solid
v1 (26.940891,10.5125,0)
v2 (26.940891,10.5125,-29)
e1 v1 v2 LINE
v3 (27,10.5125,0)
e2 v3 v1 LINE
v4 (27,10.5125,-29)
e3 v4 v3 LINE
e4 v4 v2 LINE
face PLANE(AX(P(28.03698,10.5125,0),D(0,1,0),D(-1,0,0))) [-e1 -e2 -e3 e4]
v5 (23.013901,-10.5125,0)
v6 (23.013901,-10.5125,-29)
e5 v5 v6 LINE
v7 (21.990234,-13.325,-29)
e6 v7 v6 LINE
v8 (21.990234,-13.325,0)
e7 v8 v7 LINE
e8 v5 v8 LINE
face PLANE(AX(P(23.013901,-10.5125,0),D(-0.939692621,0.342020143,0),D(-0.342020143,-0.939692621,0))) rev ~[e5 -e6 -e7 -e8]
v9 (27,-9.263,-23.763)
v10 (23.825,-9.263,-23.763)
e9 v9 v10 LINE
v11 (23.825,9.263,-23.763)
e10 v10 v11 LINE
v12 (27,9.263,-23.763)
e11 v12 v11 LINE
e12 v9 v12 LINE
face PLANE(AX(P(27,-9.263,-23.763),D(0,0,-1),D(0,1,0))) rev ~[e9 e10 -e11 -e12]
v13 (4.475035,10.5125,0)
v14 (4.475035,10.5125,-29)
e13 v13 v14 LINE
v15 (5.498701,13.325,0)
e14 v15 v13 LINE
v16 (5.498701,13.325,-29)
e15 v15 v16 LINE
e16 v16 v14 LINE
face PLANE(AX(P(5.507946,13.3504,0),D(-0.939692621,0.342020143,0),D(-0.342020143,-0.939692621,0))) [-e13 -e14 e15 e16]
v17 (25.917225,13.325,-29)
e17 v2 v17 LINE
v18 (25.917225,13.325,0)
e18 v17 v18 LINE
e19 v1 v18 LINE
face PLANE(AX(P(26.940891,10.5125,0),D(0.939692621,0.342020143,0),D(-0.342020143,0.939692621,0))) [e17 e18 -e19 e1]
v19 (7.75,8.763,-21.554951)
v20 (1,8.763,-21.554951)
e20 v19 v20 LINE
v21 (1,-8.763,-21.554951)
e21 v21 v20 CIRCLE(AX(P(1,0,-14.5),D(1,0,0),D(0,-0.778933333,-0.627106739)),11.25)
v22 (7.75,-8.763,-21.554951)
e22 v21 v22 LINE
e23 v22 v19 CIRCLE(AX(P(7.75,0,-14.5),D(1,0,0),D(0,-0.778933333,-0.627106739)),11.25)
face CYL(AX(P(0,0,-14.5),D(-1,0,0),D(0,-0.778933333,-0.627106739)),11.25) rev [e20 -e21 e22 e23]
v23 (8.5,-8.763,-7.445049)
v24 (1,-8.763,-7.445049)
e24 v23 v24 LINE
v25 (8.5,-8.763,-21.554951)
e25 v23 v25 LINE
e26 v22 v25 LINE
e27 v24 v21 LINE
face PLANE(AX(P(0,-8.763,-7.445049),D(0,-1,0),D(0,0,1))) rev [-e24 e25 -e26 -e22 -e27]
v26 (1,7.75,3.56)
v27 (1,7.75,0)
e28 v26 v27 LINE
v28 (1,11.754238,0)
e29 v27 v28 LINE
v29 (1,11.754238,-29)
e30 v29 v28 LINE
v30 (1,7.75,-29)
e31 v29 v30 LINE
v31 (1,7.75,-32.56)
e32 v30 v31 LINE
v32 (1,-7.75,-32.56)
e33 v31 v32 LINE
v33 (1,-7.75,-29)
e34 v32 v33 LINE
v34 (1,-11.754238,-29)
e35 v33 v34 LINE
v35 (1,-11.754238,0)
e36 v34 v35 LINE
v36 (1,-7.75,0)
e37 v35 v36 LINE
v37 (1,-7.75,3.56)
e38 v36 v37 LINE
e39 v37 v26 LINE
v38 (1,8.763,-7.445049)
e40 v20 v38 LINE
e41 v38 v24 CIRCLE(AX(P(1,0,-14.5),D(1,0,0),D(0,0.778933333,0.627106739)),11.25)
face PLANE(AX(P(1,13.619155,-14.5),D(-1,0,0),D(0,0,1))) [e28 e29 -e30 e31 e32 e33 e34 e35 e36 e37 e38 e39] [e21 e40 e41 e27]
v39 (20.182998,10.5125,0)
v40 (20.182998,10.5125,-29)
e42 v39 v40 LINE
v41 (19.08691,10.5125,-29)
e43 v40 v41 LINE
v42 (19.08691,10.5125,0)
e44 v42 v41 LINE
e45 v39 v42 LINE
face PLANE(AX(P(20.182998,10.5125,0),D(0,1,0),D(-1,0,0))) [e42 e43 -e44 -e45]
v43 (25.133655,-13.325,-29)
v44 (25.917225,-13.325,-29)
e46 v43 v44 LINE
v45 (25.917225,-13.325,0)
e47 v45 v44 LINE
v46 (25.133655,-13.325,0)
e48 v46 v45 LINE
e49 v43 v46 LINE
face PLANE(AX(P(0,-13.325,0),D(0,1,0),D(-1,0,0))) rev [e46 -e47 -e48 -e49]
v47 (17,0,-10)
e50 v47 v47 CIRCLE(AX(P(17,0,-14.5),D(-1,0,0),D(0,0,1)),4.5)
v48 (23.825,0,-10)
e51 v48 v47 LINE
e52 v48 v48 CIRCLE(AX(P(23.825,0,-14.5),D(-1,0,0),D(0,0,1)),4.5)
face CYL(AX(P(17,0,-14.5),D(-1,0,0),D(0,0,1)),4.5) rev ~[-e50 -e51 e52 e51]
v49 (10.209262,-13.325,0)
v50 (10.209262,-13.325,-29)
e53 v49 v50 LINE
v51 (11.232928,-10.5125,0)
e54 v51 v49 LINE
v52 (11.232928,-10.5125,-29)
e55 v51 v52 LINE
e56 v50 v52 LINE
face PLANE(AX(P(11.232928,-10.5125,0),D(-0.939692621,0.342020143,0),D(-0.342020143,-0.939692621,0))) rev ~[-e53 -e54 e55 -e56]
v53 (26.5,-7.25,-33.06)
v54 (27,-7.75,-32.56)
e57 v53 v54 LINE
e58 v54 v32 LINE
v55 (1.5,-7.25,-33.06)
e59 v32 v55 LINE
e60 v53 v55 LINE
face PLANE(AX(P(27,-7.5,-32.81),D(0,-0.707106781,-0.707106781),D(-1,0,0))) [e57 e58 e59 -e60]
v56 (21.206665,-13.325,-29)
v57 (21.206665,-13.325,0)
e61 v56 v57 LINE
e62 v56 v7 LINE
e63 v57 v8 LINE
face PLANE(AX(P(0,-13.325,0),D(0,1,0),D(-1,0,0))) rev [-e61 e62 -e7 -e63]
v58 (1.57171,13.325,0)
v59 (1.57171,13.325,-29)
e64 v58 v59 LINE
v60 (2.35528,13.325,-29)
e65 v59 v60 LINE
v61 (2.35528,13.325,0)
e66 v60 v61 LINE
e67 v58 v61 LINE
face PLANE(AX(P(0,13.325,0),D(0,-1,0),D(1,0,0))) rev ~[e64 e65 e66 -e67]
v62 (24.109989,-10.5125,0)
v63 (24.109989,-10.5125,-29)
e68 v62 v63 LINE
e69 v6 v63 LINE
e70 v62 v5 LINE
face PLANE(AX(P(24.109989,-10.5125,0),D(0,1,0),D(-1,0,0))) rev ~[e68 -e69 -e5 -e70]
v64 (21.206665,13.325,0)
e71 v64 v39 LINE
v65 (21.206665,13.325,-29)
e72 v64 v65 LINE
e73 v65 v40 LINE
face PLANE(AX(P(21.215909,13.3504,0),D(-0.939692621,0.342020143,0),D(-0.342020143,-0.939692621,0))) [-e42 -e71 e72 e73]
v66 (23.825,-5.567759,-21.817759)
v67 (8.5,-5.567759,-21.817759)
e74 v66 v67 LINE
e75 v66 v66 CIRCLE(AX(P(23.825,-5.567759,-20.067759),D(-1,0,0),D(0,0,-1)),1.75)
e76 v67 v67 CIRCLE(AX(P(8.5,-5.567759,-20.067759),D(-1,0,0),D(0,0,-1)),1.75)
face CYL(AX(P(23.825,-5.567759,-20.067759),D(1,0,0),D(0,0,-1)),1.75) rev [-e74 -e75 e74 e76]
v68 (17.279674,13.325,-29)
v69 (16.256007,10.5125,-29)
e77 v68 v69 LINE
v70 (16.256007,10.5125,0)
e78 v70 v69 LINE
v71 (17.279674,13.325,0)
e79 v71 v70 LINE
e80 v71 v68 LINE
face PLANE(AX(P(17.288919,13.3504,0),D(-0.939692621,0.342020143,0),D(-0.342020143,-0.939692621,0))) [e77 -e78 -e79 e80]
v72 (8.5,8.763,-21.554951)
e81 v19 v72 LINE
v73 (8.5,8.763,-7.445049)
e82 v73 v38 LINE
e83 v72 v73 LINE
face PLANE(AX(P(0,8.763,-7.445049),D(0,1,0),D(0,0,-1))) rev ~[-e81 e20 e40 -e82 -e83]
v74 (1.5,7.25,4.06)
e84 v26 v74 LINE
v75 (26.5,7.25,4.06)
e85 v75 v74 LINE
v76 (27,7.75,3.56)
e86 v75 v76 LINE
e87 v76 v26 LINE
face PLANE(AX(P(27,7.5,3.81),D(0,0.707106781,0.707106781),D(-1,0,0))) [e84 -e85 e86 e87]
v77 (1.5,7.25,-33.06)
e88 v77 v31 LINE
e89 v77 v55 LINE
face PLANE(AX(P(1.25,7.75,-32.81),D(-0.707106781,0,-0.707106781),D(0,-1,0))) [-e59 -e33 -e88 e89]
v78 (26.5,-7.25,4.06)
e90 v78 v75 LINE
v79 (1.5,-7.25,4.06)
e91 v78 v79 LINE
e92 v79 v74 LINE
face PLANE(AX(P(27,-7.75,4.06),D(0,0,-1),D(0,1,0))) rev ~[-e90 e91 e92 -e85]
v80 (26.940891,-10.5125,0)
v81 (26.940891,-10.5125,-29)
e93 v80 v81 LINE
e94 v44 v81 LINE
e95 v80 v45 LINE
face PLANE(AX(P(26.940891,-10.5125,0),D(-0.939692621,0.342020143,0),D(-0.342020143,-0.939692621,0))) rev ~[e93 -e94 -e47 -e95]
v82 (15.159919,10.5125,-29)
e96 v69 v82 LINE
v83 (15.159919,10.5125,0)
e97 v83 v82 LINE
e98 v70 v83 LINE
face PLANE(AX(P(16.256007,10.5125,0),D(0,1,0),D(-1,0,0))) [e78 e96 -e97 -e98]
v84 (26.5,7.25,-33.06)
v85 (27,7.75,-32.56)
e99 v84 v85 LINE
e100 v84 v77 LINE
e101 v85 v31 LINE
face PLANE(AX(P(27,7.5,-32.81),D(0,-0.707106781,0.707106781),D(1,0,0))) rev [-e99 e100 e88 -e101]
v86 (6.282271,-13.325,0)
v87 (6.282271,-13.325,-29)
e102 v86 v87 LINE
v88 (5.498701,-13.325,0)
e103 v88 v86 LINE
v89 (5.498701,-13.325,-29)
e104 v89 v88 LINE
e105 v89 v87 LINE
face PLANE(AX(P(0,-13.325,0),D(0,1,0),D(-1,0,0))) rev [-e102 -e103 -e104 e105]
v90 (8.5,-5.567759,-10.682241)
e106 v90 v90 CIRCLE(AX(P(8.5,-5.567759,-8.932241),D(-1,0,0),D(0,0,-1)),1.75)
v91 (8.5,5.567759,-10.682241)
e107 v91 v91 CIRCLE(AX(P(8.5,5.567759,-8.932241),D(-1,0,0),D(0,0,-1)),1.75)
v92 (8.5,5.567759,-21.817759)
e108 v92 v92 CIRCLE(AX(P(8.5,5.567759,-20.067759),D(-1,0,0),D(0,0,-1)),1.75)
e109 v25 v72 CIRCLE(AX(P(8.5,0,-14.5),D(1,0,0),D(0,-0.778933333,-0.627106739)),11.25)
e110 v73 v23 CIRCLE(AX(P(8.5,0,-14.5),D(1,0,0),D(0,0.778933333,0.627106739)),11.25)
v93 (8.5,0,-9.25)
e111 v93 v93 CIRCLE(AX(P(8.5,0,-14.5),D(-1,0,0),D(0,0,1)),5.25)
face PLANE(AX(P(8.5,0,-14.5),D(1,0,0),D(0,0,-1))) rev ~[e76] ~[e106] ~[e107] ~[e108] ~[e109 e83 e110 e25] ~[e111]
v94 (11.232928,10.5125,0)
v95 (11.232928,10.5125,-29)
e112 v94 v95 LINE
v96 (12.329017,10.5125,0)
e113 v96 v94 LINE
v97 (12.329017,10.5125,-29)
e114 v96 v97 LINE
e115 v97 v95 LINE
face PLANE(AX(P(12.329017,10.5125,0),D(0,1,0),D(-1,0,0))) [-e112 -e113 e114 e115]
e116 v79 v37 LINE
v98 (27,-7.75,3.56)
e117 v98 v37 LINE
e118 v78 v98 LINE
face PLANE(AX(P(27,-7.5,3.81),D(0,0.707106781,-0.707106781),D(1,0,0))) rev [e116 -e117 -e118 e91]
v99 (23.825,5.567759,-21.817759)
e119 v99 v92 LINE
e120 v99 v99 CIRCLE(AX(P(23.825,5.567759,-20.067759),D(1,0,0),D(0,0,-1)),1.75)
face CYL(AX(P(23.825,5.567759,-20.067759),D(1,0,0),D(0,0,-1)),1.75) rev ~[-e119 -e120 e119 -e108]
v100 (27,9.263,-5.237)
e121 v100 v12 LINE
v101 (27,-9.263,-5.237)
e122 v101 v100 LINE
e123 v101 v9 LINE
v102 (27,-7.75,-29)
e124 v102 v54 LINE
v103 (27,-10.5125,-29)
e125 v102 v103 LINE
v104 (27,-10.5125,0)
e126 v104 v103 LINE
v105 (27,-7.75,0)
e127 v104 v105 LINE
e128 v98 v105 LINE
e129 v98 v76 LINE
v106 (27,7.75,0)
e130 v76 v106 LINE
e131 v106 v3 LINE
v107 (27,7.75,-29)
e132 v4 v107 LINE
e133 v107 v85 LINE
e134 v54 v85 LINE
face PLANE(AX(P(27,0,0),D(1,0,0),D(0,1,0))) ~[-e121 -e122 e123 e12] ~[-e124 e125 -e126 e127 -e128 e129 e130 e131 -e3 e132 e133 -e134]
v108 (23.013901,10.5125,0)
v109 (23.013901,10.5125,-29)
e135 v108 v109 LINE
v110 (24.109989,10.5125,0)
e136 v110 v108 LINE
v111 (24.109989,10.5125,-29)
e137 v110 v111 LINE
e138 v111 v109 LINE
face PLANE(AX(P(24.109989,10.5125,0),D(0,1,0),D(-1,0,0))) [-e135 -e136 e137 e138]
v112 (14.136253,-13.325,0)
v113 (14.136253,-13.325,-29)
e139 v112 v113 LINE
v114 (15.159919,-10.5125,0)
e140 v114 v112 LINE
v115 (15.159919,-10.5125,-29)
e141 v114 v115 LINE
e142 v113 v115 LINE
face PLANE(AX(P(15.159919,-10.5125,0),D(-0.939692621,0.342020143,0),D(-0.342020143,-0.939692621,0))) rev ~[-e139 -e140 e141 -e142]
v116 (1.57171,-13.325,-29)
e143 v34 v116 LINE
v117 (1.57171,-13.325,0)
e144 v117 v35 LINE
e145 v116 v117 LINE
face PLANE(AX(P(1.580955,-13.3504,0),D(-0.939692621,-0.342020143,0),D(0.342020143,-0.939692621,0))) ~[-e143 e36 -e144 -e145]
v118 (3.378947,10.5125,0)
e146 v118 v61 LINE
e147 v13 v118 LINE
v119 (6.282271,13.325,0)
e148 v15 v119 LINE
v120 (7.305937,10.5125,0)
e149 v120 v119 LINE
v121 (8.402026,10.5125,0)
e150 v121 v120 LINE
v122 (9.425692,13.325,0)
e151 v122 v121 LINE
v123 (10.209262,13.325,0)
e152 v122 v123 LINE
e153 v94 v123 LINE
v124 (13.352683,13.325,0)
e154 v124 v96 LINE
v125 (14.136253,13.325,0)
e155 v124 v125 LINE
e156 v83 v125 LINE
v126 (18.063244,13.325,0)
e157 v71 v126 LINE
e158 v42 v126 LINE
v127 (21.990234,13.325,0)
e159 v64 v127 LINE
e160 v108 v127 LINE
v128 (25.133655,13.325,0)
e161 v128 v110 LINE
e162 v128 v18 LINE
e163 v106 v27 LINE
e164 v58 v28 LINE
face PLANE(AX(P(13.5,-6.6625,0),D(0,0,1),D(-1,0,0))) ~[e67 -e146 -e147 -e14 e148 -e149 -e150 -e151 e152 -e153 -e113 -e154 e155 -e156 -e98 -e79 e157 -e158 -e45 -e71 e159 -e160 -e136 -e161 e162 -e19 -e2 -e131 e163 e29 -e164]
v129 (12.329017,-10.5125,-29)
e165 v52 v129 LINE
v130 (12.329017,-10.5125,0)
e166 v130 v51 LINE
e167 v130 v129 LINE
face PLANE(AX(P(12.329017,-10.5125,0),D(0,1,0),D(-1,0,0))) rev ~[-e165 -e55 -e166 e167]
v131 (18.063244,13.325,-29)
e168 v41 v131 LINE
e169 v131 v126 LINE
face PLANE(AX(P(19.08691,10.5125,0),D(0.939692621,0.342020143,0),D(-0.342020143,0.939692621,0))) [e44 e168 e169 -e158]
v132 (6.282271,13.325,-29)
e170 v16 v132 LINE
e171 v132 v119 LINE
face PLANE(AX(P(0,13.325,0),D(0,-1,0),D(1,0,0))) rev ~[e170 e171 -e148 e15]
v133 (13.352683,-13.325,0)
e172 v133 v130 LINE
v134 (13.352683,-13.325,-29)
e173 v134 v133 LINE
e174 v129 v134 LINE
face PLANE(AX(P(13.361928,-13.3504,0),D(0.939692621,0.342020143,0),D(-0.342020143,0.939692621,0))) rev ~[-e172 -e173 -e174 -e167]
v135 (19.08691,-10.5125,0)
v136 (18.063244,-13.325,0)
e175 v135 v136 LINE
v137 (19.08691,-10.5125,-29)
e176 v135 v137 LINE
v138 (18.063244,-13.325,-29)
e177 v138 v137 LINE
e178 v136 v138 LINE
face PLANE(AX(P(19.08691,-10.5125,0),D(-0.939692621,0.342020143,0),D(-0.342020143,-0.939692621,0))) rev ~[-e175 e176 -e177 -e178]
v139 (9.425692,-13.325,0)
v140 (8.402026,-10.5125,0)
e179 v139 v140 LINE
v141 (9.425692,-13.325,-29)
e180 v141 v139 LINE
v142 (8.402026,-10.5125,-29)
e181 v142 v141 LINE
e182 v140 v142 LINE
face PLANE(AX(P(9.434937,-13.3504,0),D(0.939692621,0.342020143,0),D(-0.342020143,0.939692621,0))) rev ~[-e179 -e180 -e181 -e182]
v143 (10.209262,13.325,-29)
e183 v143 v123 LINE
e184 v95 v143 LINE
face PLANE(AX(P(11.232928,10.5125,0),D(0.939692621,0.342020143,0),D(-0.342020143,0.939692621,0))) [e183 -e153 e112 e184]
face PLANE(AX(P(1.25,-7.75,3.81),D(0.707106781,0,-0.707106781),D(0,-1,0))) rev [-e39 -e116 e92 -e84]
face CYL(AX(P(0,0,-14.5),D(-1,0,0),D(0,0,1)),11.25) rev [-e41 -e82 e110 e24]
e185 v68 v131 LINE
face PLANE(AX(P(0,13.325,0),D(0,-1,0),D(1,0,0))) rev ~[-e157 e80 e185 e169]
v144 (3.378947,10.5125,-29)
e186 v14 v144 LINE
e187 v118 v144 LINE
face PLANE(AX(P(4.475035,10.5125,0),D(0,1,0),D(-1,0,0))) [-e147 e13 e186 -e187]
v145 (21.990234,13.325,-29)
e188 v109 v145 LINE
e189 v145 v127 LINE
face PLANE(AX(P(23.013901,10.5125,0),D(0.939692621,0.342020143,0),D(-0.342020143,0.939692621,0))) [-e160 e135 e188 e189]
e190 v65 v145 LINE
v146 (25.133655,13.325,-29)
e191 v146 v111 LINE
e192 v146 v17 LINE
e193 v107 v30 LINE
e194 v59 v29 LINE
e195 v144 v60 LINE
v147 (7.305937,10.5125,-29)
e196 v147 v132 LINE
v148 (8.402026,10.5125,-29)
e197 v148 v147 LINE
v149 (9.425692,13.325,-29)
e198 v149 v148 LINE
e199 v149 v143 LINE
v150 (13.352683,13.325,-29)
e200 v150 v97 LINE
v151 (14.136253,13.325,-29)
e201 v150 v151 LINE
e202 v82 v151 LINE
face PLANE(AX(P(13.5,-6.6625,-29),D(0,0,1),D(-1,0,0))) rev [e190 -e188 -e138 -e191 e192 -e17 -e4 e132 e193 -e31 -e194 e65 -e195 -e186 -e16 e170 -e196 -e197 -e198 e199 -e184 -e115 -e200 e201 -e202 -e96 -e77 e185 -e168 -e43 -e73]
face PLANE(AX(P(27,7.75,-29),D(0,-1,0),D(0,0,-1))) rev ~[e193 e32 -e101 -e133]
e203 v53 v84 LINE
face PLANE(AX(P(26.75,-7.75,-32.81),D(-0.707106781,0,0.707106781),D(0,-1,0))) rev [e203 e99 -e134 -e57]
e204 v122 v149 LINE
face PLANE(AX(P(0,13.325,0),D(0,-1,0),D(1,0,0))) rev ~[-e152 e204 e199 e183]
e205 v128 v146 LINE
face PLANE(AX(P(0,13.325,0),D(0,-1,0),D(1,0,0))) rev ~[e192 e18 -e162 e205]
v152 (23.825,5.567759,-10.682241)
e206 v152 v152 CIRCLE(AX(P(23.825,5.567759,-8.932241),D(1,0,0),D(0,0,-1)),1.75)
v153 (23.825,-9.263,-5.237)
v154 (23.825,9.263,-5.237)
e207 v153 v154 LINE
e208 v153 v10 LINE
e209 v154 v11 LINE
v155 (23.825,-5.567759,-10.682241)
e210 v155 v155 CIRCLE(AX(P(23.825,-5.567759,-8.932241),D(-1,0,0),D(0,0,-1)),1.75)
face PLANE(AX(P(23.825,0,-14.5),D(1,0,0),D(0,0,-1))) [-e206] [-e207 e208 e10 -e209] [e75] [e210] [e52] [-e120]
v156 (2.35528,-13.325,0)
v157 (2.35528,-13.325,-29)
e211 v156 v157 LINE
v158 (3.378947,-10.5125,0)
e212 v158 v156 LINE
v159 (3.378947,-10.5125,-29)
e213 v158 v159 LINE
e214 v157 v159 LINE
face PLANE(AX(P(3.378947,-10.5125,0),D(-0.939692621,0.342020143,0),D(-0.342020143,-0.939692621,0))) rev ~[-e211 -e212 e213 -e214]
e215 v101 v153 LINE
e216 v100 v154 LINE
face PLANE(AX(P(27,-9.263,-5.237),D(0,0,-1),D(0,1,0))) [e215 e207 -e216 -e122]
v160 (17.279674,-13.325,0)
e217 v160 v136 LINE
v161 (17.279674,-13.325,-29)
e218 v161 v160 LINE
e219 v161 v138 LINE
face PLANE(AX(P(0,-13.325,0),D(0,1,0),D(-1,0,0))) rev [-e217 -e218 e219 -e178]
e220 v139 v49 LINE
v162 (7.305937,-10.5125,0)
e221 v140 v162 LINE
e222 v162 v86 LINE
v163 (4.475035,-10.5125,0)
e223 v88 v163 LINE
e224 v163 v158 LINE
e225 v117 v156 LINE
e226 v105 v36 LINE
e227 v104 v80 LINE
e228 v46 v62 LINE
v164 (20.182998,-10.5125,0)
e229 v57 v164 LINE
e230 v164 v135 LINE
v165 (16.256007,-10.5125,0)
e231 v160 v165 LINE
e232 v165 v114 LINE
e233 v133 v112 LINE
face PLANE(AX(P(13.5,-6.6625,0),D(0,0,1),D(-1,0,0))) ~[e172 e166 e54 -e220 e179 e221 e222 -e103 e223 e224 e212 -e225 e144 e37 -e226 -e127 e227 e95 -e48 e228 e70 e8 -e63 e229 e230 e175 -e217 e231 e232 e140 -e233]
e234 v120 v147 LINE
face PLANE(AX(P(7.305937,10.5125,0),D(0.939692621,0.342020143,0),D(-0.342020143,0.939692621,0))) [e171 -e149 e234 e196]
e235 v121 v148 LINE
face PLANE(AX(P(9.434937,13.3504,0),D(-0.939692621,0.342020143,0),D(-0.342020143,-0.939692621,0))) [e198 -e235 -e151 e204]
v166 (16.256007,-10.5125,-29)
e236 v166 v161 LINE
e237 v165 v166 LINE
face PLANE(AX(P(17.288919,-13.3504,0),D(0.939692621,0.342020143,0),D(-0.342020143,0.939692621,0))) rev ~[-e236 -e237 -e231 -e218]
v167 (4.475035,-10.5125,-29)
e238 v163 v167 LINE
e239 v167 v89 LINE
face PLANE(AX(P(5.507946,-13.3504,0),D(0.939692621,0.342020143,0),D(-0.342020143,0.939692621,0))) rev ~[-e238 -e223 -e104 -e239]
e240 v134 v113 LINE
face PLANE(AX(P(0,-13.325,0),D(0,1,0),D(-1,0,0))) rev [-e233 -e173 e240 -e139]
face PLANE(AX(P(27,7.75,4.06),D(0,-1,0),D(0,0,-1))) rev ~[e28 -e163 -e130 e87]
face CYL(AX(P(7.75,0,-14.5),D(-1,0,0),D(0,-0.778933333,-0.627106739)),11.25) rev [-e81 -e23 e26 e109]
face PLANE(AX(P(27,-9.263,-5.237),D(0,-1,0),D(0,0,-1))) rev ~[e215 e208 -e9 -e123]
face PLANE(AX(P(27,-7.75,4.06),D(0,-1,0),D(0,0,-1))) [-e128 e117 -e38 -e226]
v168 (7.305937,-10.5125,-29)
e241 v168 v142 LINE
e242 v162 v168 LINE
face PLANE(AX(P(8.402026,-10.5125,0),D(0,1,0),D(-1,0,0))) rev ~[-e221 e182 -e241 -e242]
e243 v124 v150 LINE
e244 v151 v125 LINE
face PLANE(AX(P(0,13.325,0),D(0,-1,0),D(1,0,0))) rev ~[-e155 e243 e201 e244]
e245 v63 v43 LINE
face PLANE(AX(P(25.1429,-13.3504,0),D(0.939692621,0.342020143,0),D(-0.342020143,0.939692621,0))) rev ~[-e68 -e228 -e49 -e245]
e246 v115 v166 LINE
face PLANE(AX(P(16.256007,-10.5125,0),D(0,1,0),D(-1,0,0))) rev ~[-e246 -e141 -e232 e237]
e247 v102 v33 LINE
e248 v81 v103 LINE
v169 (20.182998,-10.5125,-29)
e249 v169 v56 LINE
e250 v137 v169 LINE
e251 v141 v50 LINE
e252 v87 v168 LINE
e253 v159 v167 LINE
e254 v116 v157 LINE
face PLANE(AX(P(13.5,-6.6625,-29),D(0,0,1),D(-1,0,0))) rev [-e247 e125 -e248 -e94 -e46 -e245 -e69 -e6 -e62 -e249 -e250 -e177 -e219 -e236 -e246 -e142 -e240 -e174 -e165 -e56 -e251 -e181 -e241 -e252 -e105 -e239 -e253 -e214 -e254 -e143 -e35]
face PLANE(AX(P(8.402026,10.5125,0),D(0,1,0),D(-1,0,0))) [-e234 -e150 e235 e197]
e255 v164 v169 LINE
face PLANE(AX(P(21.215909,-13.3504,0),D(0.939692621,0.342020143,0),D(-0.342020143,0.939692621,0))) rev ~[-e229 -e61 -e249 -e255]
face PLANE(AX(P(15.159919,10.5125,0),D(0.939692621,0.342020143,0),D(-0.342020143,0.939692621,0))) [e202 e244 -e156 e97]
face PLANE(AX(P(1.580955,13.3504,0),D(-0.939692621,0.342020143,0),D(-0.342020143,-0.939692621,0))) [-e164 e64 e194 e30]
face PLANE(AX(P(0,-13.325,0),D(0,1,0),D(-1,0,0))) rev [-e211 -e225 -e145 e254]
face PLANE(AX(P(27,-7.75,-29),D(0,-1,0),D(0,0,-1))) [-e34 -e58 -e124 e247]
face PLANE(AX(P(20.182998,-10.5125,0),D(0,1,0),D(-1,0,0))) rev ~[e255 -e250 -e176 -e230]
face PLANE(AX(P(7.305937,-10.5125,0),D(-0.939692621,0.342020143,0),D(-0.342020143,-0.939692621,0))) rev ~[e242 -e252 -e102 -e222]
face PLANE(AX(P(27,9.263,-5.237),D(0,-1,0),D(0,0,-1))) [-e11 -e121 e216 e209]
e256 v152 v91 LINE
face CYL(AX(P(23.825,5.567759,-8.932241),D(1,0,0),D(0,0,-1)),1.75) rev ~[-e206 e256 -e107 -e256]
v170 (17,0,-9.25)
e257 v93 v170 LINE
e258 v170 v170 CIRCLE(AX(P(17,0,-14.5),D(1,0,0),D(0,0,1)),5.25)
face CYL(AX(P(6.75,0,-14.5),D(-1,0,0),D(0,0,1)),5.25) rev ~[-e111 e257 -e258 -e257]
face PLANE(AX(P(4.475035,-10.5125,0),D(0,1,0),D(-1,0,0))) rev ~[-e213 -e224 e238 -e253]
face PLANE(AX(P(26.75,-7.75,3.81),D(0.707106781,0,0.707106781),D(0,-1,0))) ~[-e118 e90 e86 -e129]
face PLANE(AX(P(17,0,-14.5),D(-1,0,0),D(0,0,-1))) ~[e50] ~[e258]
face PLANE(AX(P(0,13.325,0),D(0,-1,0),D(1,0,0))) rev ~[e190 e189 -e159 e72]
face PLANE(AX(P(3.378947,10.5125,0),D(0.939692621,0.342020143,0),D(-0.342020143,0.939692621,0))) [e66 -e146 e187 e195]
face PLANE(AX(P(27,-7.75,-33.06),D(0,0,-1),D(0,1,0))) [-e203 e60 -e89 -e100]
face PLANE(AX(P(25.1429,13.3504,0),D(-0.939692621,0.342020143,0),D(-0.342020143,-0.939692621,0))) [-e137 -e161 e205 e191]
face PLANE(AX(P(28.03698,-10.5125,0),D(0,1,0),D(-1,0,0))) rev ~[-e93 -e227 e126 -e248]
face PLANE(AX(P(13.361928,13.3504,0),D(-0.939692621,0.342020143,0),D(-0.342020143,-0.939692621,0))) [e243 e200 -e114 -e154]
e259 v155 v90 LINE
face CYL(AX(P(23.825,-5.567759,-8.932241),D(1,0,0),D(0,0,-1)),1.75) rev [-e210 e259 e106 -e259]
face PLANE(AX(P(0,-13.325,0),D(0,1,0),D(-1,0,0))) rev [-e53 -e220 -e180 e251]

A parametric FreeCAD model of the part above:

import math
import FreeCAD as App
import Part
import Sketcher
from FreeCAD import Vector
Q = App.Units.Quantity


def edges_at(feature, points):
    """Names of the edges that pass closest to the given points."""
    edges = feature.Shape.Edges
    near = lambda p: min(range(len(edges)), key=lambda i: edges[i].distToShape(Part.Vertex(*p))[0])
    return sorted({f"Edge{near(p) + 1}" for p in points})


def add_polygon(sketch, points):
    """Adds a closed chain of lines whose ends are joined by coincident constraints."""
    first, n = sketch.GeometryCount, len(points)
    for a, b in zip(points, points[1:] + points[:1]):
        sketch.addGeometry(Part.LineSegment(App.Vector(*a, 0), App.Vector(*b, 0)), False)
    for i in range(n):
        sketch.addConstraint(Sketcher.Constraint("Coincident", first + i, 2, first + (i + 1) % n, 1))

doc = App.newDocument("Part")
params = doc.addObject("Spreadsheet::Sheet", "Params")
for row, (alias, value) in enumerate([
    ("sketch1_width", "27 mm"),
    ("pad1_length", "29 mm"),
    ("linearpattern_pitch", "3.926991 mm"),
    ("sketch3_radius", "11.25 mm"),
    ("pocket2_length", "6.75 mm"),
    ("sketch4_diameter", "10.5 mm"),
    ("pocket3_length", "10.25 mm"),
    ("sketch5_diameter", "9 mm"),
    ("pocket4_length", "74.320277 mm"),
    ("sketch6_diameter", "5 mm"),
    ("pocket5_length", "3.175 mm"),
    ("sketch7_diameter", "3.5 mm"),
    ("pocket14_length", "3.175 mm"),
    ("sketch16_width", "15.5 mm"),
    ("sketch16_height", "4.06 mm"),
    ("pad2_length", "27 mm"),
    ("sketch17_height", "29 mm"),
    ("sketch17_radius", "11.25 mm"),
    ("sketch17_width", "15.5 mm"),
    ("sketch17_height2", "4.06 mm"),
    ("pocket15_length", "1 mm"),
    ("sketch18_diameter", "3.5 mm"),
    ("sketch18_diameter2", "10.5 mm"),
    ("sketch18_radius", "11.25 mm"),
    ("pocket16_length", "7.75 mm"),
    ("sketch19_diameter", "3.5 mm"),
    ("sketch19_diameter2", "10.5 mm"),
    ("sketch19_radius", "11.25 mm"),
    ("pocket17_length", "0.75 mm"),
    ("chamfer_size", "0.5 mm"),
], start=1):
    params.set(f"A{row}", alias)
    params.set(f"B{row}", "=" + value)
    params.setAlias(f"B{row}", alias)

body = doc.addObject("PartDesign::Body", "Body")

# Sketch on XY plane
sketch1 = body.newObject("Sketcher::SketchObject", "Sketch")
sketch1.AttachmentSupport = (doc.getObject("XY_Plane"), [""])
sketch1.MapMode = "FlatFace"
add_polygon(sketch1, [(0, 13), (0, 0), (27, 0), (27, 13)])  # lines 0-3
sketch1.addConstraint(Sketcher.Constraint("Vertical", 0))
sketch1.addConstraint(Sketcher.Constraint("Horizontal", 1))
sketch1.addConstraint(Sketcher.Constraint("Vertical", 2))
sketch1.addConstraint(Sketcher.Constraint("Horizontal", 3))
sketch1.addConstraint(Sketcher.Constraint("Coincident", 0, 2, -1, 1))
sketch1.addConstraint(Sketcher.Constraint("DistanceX", 1, 1, 1, 2, 27.0))
sketch1.addConstraint(Sketcher.Constraint("DistanceY", 0, 2, 0, 1, 13.325))
sketch1.setExpression("Constraints[9]", "Params.sketch1_width")
pad1 = body.newObject("PartDesign::Pad", "Pad")
pad1.Profile = sketch1
pad1.setExpression("Length", "Params.pad1_length")
pad1.Reversed = True

# Sketch on XY plane
sketch2 = body.newObject("Sketcher::SketchObject", "Sketch001")
sketch2.AttachmentSupport = (doc.getObject("XY_Plane"), [""])
sketch2.MapMode = "FlatFace"
add_polygon(sketch2, [(-0.5, 10.5), (0.5, 10.5), (1.6, 13.4), (-1.6, 13.4)])  # lines 0-3
sketch2.addConstraint(Sketcher.Constraint("Horizontal", 0))
sketch2.addConstraint(Sketcher.Constraint("Horizontal", 2))
sketch2.addConstraint(Sketcher.Constraint("Equal", 1, 3))
sketch2.addConstraint(Sketcher.Constraint("Angle", 1, Q("70 deg")))
sketch2.addConstraint(Sketcher.Constraint("DistanceX", 2, 2, 0, 2, 2.129))
sketch2.addConstraint(Sketcher.Constraint("DistanceX", 0, 1, 0, 2, 1.096088))
sketch2.addConstraint(Sketcher.Constraint("DistanceY", -1, 1, 0, 2, 10.5125))
sketch2.addConstraint(Sketcher.Constraint("DistanceX", -1, 1, 0, 2, 0.548044))
pocket1 = body.newObject("PartDesign::Pocket", "Pocket")
pocket1.Profile = sketch2
pocket1.Type = "ThroughAll"
doc.recompute()

linearpattern = body.newObject("PartDesign::LinearPattern", "LinearPattern")
linearpattern.Originals = [pocket1]
linearpattern.Direction = (doc.getObject("X_Axis"), [""])
linearpattern.Mode = "offset"
linearpattern.setExpression("Offset", "Params.linearpattern_pitch")
linearpattern.Occurrences = 8
body.Tip = linearpattern

# Sketch on YZ plane
sketch3 = body.newObject("Sketcher::SketchObject", "Sketch002")
sketch3.AttachmentSupport = (doc.getObject("YZ_Plane"), [""])
sketch3.MapMode = "FlatFace"
sketch3.addGeometry(Part.LineSegment(Vector(9, -7, 0), Vector(9, -22, 0)), False)
sketch3.addGeometry(Part.ArcOfCircle(Part.Circle(Vector(0, -14, 0), Vector(0, 0, 1), 11), math.radians(-90), math.radians(-39)), False)
sketch3.addGeometry(Part.LineSegment(Vector(0, -26, 0), Vector(0, -3, 0)), False)
sketch3.addGeometry(Part.ArcOfCircle(Part.Circle(Vector(0, -15, 0), Vector(0, 0, 1), 11), math.radians(39), math.radians(90)), False)
sketch3.addConstraint(Sketcher.Constraint("Coincident", 0, 2, 1, 2))
sketch3.addConstraint(Sketcher.Constraint("Coincident", 1, 1, 2, 1))
sketch3.addConstraint(Sketcher.Constraint("Coincident", 2, 2, 3, 2))
sketch3.addConstraint(Sketcher.Constraint("Coincident", 3, 1, 0, 1))
sketch3.addConstraint(Sketcher.Constraint("Vertical", 0))
sketch3.addConstraint(Sketcher.Constraint("Vertical", 2))
sketch3.addConstraint(Sketcher.Constraint("Coincident", 3, 3, 1, 3))
sketch3.addConstraint(Sketcher.Constraint("Equal", 1, 3))
sketch3.addConstraint(Sketcher.Constraint("PointOnObject", 1, 3, -2))
sketch3.addConstraint(Sketcher.Constraint("PointOnObject", 1, 1, -2))
sketch3.addConstraint(Sketcher.Constraint("Radius", 1, 11.25))
sketch3.addConstraint(Sketcher.Constraint("DistanceY", 1, 3, -1, 1, 14.5))
sketch3.addConstraint(Sketcher.Constraint("DistanceY", 0, 2, 0, 1, 14.109902))
sketch3.setExpression("Constraints[10]", "Params.sketch3_radius")
pocket2 = body.newObject("PartDesign::Pocket", "Pocket001")
pocket2.Profile = sketch3
pocket2.setExpression("Length", "Params.pocket2_length")
pocket2.Reversed = True

# Sketch on YZ plane
sketch4 = body.newObject("Sketcher::SketchObject", "Sketch003")
sketch4.AttachmentSupport = (doc.getObject("YZ_Plane"), [""])
sketch4.MapMode = "FlatFace"
sketch4.AttachmentOffset = App.Placement(Vector(0, 0, 6.75), App.Rotation())
sketch4.addGeometry(Part.Circle(Vector(0, -14, 0), Vector(0, 0, 1), 5), False)
sketch4.addConstraint(Sketcher.Constraint("PointOnObject", 0, 3, -2))
sketch4.addConstraint(Sketcher.Constraint("Diameter", 0, 10.5))
sketch4.addConstraint(Sketcher.Constraint("DistanceY", 0, 3, -1, 1, 14.5))
sketch4.setExpression("Constraints[1]", "Params.sketch4_diameter")
pocket3 = body.newObject("PartDesign::Pocket", "Pocket002")
pocket3.Profile = sketch4
pocket3.setExpression("Length", "Params.pocket3_length")
pocket3.Reversed = True

# Sketch on YZ plane
sketch5 = body.newObject("Sketcher::SketchObject", "Sketch004")
sketch5.AttachmentSupport = (doc.getObject("YZ_Plane"), [""])
sketch5.MapMode = "FlatFace"
sketch5.AttachmentOffset = App.Placement(Vector(0, 0, 17), App.Rotation())
sketch5.addGeometry(Part.Circle(Vector(0, -14.5, 0), Vector(0, 0, 1), 4.5), False)
sketch5.addConstraint(Sketcher.Constraint("PointOnObject", 0, 3, -2))
sketch5.addConstraint(Sketcher.Constraint("Diameter", 0, 9.0))
sketch5.addConstraint(Sketcher.Constraint("DistanceY", 0, 3, -1, 1, 14.5))
sketch5.setExpression("Constraints[1]", "Params.sketch5_diameter")
pocket4 = body.newObject("PartDesign::Pocket", "Pocket003")
pocket4.Profile = sketch5
pocket4.setExpression("Length", "Params.pocket4_length")
pocket4.Midplane = True

# Sketch on YZ plane
sketch6 = body.newObject("Sketcher::SketchObject", "Sketch005")
sketch6.AttachmentSupport = (doc.getObject("YZ_Plane"), [""])
sketch6.MapMode = "FlatFace"
sketch6.AttachmentOffset = App.Placement(Vector(0, 0, 27), App.Rotation())
sketch6.addGeometry(Part.Circle(Vector(5.6, -8.9, 0), Vector(0, 0, 1), 2.5), False)
sketch6.addGeometry(Part.Circle(Vector(5.6, -20.1, 0), Vector(0, 0, 1), 2.5), False)
sketch6.addConstraint(Sketcher.Constraint("Equal", 0, 1))
sketch6.addConstraint(Sketcher.Constraint("Vertical", 0, 3, 1, 3))
sketch6.addConstraint(Sketcher.Constraint("Diameter", 0, 5.0))
sketch6.addConstraint(Sketcher.Constraint("DistanceX", -1, 1, 0, 3, 5.567759))
sketch6.addConstraint(Sketcher.Constraint("DistanceY", 0, 3, -1, 1, 8.932241))
sketch6.addConstraint(Sketcher.Constraint("DistanceY", 1, 3, -1, 1, 20.067759))
sketch6.setExpression("Constraints[2]", "Params.sketch6_diameter")
pocket5 = body.newObject("PartDesign::Pocket", "Pocket004")
pocket5.Profile = sketch6
pocket5.setExpression("Length", "Params.pocket5_length")

# Sketch on YZ plane
sketch7 = body.newObject("Sketcher::SketchObject", "Sketch006")
sketch7.AttachmentSupport = (doc.getObject("YZ_Plane"), [""])
sketch7.MapMode = "FlatFace"
sketch7.AttachmentOffset = App.Placement(Vector(0, 0, 23.825), App.Rotation())
sketch7.addGeometry(Part.Circle(Vector(5.6, -20.1, 0), Vector(0, 0, 1), 1.8), False)
sketch7.addGeometry(Part.Circle(Vector(5.6, -8.9, 0), Vector(0, 0, 1), 1.8), False)
sketch7.addConstraint(Sketcher.Constraint("Equal", 0, 1))
sketch7.addConstraint(Sketcher.Constraint("Vertical", 0, 3, 1, 3))
sketch7.addConstraint(Sketcher.Constraint("Diameter", 0, 3.5))
sketch7.addConstraint(Sketcher.Constraint("DistanceX", -1, 1, 0, 3, 5.567759))
sketch7.addConstraint(Sketcher.Constraint("DistanceY", 0, 3, -1, 1, 20.067759))
sketch7.addConstraint(Sketcher.Constraint("DistanceY", 1, 3, -1, 1, 8.932241))
sketch7.setExpression("Constraints[2]", "Params.sketch7_diameter")
pocket6 = body.newObject("PartDesign::Pocket", "Pocket005")
pocket6.Profile = sketch7
pocket6.Type = "ThroughAll"
doc.recompute()

mirrored = body.newObject("PartDesign::Mirrored", "Mirrored")
mirrored.Originals = [pad1, pocket1, pocket2, pocket3, pocket4, pocket5, pocket6]
mirrored.MirrorPlane = (doc.getObject("XZ_Plane"), [""])
body.Tip = mirrored

# Sketch on XY plane
sketch8 = body.newObject("Sketcher::SketchObject", "Sketch007")
sketch8.AttachmentSupport = (doc.getObject("XY_Plane"), [""])
sketch8.MapMode = "FlatFace"
add_polygon(sketch8, [(4.5, -10.5), (3.4, -10.5), (2.3, -13.4), (5.5, -13.4)])  # lines 0-3
sketch8.addConstraint(Sketcher.Constraint("Horizontal", 0))
sketch8.addConstraint(Sketcher.Constraint("Horizontal", 2))
sketch8.addConstraint(Sketcher.Constraint("Equal", 1, 3))
sketch8.addConstraint(Sketcher.Constraint("Angle", 1, Q("-110 deg")))
sketch8.addConstraint(Sketcher.Constraint("DistanceX", 0, 2, 2, 2, 2.129))
sketch8.addConstraint(Sketcher.Constraint("DistanceX", 0, 2, 0, 1, 1.096088))
sketch8.addConstraint(Sketcher.Constraint("DistanceY", 0, 2, -1, 1, 10.5125))
sketch8.addConstraint(Sketcher.Constraint("DistanceX", -1, 1, 0, 2, 3.378947))
pocket7 = body.newObject("PartDesign::Pocket", "Pocket006")
pocket7.Profile = sketch8
pocket7.Type = "ThroughAll"

# Sketch on XY plane
sketch9 = body.newObject("Sketcher::SketchObject", "Sketch008")
sketch9.AttachmentSupport = (doc.getObject("XY_Plane"), [""])
sketch9.MapMode = "FlatFace"
add_polygon(sketch9, [(8.4, -10.5), (7.3, -10.5), (6.3, -13.4), (9.4, -13.4)])  # lines 0-3
sketch9.addConstraint(Sketcher.Constraint("Horizontal", 0))
sketch9.addConstraint(Sketcher.Constraint("Horizontal", 2))
sketch9.addConstraint(Sketcher.Constraint("Equal", 1, 3))
sketch9.addConstraint(Sketcher.Constraint("Angle", 1, Q("-110 deg")))
sketch9.addConstraint(Sketcher.Constraint("DistanceX", 0, 2, 2, 2, 2.129))
sketch9.addConstraint(Sketcher.Constraint("DistanceX", 0, 2, 0, 1, 1.096088))
sketch9.addConstraint(Sketcher.Constraint("DistanceY", 0, 2, -1, 1, 10.5125))
sketch9.addConstraint(Sketcher.Constraint("DistanceX", -1, 1, 0, 2, 7.305937))
pocket8 = body.newObject("PartDesign::Pocket", "Pocket007")
pocket8.Profile = sketch9
pocket8.Type = "ThroughAll"

# Sketch on XY plane
sketch10 = body.newObject("Sketcher::SketchObject", "Sketch009")
sketch10.AttachmentSupport = (doc.getObject("XY_Plane"), [""])
sketch10.MapMode = "FlatFace"
add_polygon(sketch10, [(12.3, -10.5), (11.2, -10.5), (10.2, -13.4), (13.4, -13.4)])  # lines 0-3
sketch10.addConstraint(Sketcher.Constraint("Horizontal", 0))
sketch10.addConstraint(Sketcher.Constraint("Horizontal", 2))
sketch10.addConstraint(Sketcher.Constraint("Equal", 1, 3))
sketch10.addConstraint(Sketcher.Constraint("Angle", 1, Q("-110 deg")))
sketch10.addConstraint(Sketcher.Constraint("DistanceX", 0, 2, 2, 2, 2.129))
sketch10.addConstraint(Sketcher.Constraint("DistanceX", 0, 2, 0, 1, 1.096088))
sketch10.addConstraint(Sketcher.Constraint("DistanceY", 0, 2, -1, 1, 10.5125))
sketch10.addConstraint(Sketcher.Constraint("DistanceX", -1, 1, 0, 2, 11.232928))
pocket9 = body.newObject("PartDesign::Pocket", "Pocket008")
pocket9.Profile = sketch10
pocket9.Type = "ThroughAll"

# Sketch on XY plane
sketch11 = body.newObject("Sketcher::SketchObject", "Sketch010")
sketch11.AttachmentSupport = (doc.getObject("XY_Plane"), [""])
sketch11.MapMode = "FlatFace"
add_polygon(sketch11, [(16.3, -10.5), (15.2, -10.5), (14.1, -13.4), (17.3, -13.4)])  # lines 0-3
sketch11.addConstraint(Sketcher.Constraint("Horizontal", 0))
sketch11.addConstraint(Sketcher.Constraint("Horizontal", 2))
sketch11.addConstraint(Sketcher.Constraint("Equal", 1, 3))
sketch11.addConstraint(Sketcher.Constraint("Angle", 1, Q("-110 deg")))
sketch11.addConstraint(Sketcher.Constraint("DistanceX", 0, 2, 2, 2, 2.129))
sketch11.addConstraint(Sketcher.Constraint("DistanceX", 0, 2, 0, 1, 1.096088))
sketch11.addConstraint(Sketcher.Constraint("DistanceY", 0, 2, -1, 1, 10.5125))
sketch11.addConstraint(Sketcher.Constraint("DistanceX", -1, 1, 0, 2, 15.159919))
pocket10 = body.newObject("PartDesign::Pocket", "Pocket009")
pocket10.Profile = sketch11
pocket10.Type = "ThroughAll"

# Sketch on XY plane
sketch12 = body.newObject("Sketcher::SketchObject", "Sketch011")
sketch12.AttachmentSupport = (doc.getObject("XY_Plane"), [""])
sketch12.MapMode = "FlatFace"
add_polygon(sketch12, [(20.2, -10.5), (19.1, -10.5), (18.1, -13.4), (21.2, -13.4)])  # lines 0-3
sketch12.addConstraint(Sketcher.Constraint("Horizontal", 0))
sketch12.addConstraint(Sketcher.Constraint("Horizontal", 2))
sketch12.addConstraint(Sketcher.Constraint("Equal", 1, 3))
sketch12.addConstraint(Sketcher.Constraint("Angle", 1, Q("-110 deg")))
sketch12.addConstraint(Sketcher.Constraint("DistanceX", -1, 1, 1, 2, 18.053999))
sketch12.addConstraint(Sketcher.Constraint("DistanceX", -1, 1, 3, 2, 20.182998))
sketch12.addConstraint(Sketcher.Constraint("DistanceX", 0, 2, 0, 1, 1.096088))
sketch12.addConstraint(Sketcher.Constraint("DistanceY", 0, 2, -1, 1, 10.5125))
pocket11 = body.newObject("PartDesign::Pocket", "Pocket010")
pocket11.Profile = sketch12
pocket11.Type = "ThroughAll"

# Sketch on XY plane
sketch13 = body.newObject("Sketcher::SketchObject", "Sketch012")
sketch13.AttachmentSupport = (doc.getObject("XY_Plane"), [""])
sketch13.MapMode = "FlatFace"
add_polygon(sketch13, [(24.1, -10.5), (23, -10.5), (22, -13.4), (25.1, -13.4)])  # lines 0-3
sketch13.addConstraint(Sketcher.Constraint("Horizontal", 0))
sketch13.addConstraint(Sketcher.Constraint("Horizontal", 2))
sketch13.addConstraint(Sketcher.Constraint("Equal", 1, 3))
sketch13.addConstraint(Sketcher.Constraint("Angle", 1, Q("-110 deg")))
sketch13.addConstraint(Sketcher.Constraint("DistanceX", 0, 2, 2, 2, 2.129))
sketch13.addConstraint(Sketcher.Constraint("DistanceX", 0, 2, 0, 1, 1.096088))
sketch13.addConstraint(Sketcher.Constraint("DistanceX", -1, 1, 0, 2, 23.013901))
sketch13.addConstraint(Sketcher.Constraint("DistanceY", 0, 2, -1, 1, 10.5125))
pocket12 = body.newObject("PartDesign::Pocket", "Pocket011")
pocket12.Profile = sketch13
pocket12.Type = "ThroughAll"

# Sketch on XY plane
sketch14 = body.newObject("Sketcher::SketchObject", "Sketch013")
sketch14.AttachmentSupport = (doc.getObject("XY_Plane"), [""])
sketch14.MapMode = "FlatFace"
add_polygon(sketch14, [(28, -10.5), (26.9, -10.5), (25.9, -13.4), (29.1, -13.4)])  # lines 0-3
sketch14.addConstraint(Sketcher.Constraint("Horizontal", 0))
sketch14.addConstraint(Sketcher.Constraint("Horizontal", 2))
sketch14.addConstraint(Sketcher.Constraint("Equal", 1, 3))
sketch14.addConstraint(Sketcher.Constraint("Angle", 1, Q("-110 deg")))
sketch14.addConstraint(Sketcher.Constraint("DistanceX", 0, 2, 2, 2, 2.129))
sketch14.addConstraint(Sketcher.Constraint("DistanceX", 0, 2, 0, 1, 1.096088))
sketch14.addConstraint(Sketcher.Constraint("DistanceY", 0, 2, -1, 1, 10.5125))
sketch14.addConstraint(Sketcher.Constraint("DistanceX", -1, 1, 0, 2, 26.940891))
pocket13 = body.newObject("PartDesign::Pocket", "Pocket012")
pocket13.Profile = sketch14
pocket13.Type = "ThroughAll"

# Sketch on YZ plane
sketch15 = body.newObject("Sketcher::SketchObject", "Sketch014")
sketch15.AttachmentSupport = (doc.getObject("YZ_Plane"), [""])
sketch15.MapMode = "FlatFace"
sketch15.AttachmentOffset = App.Placement(Vector(0, 0, 27), App.Rotation())
add_polygon(sketch15, [(9, -5), (-9, -5), (-9, -24), (9, -24)])  # lines 0-3
sketch15.addConstraint(Sketcher.Constraint("Horizontal", 0))
sketch15.addConstraint(Sketcher.Constraint("Vertical", 1))
sketch15.addConstraint(Sketcher.Constraint("Horizontal", 2))
sketch15.addConstraint(Sketcher.Constraint("Vertical", 3))
sketch15.addConstraint(Sketcher.Constraint("Equal", 2, 1))
sketch15.addConstraint(Sketcher.Constraint("DistanceX", 0, 2, 0, 1, 18.526))
sketch15.addConstraint(Sketcher.Constraint("DistanceX", 0, 2, -1, 1, 9.263))
sketch15.addConstraint(Sketcher.Constraint("DistanceY", 0, 2, -1, 1, 5.237))
pocket14 = body.newObject("PartDesign::Pocket", "Pocket013")
pocket14.Profile = sketch15
pocket14.setExpression("Length", "Params.pocket14_length")

# Sketch on YZ plane
sketch16 = body.newObject("Sketcher::SketchObject", "Sketch015")
sketch16.AttachmentSupport = (doc.getObject("YZ_Plane"), [""])
sketch16.MapMode = "FlatFace"
sketch16.AttachmentOffset = App.Placement(Vector(0, 0, 27), App.Rotation())
add_polygon(sketch16, [(7.8, -29), (-7.8, -29), (-7.8, -33.1), (7.8, -33.1)])  # lines 0-3
add_polygon(sketch16, [(7.8, 4.1), (-7.8, 4.1), (-7.8, 0), (7.8, 0)])  # lines 4-7
sketch16.addConstraint(Sketcher.Constraint("Horizontal", 0))
sketch16.addConstraint(Sketcher.Constraint("Vertical", 1))
sketch16.addConstraint(Sketcher.Constraint("Horizontal", 2))
sketch16.addConstraint(Sketcher.Constraint("Vertical", 3))
sketch16.addConstraint(Sketcher.Constraint("Horizontal", 4))
sketch16.addConstraint(Sketcher.Constraint("Vertical", 5))
sketch16.addConstraint(Sketcher.Constraint("Horizontal", 6))
sketch16.addConstraint(Sketcher.Constraint("Vertical", 7))
sketch16.addConstraint(Sketcher.Constraint("Symmetric", 5, 2, 6, 2, -1, 1))
sketch16.addConstraint(Sketcher.Constraint("Vertical", 1, 2, 4, 2))
sketch16.addConstraint(Sketcher.Constraint("Vertical", 3, 2, 6, 2))
sketch16.addConstraint(Sketcher.Constraint("Equal", 3, 5))
sketch16.addConstraint(Sketcher.Constraint("DistanceX", 0, 2, 0, 1, 15.5))
sketch16.addConstraint(Sketcher.Constraint("DistanceY", 0, 2, -1, 1, 29.0))
sketch16.addConstraint(Sketcher.Constraint("DistanceY", 1, 2, 1, 1, 4.06))
sketch16.setExpression("Constraints[20]", "Params.sketch16_width")
sketch16.setExpression("Constraints[22]", "Params.sketch16_height")
pad2 = body.newObject("PartDesign::Pad", "Pad001")
pad2.Profile = sketch16
pad2.setExpression("Length", "Params.pad2_length")
pad2.Reversed = True

# Sketch on YZ plane
sketch17 = body.newObject("Sketcher::SketchObject", "Sketch016")
sketch17.AttachmentSupport = (doc.getObject("YZ_Plane"), [""])
sketch17.MapMode = "FlatFace"
add_polygon(sketch17, [(16.7, -29), (7.8, -29), (7.8, -33.1), (-7.8, -33.1), (-7.8, -29), (-15.6, -29), (-15.6, 0), (-7.8, 0), (-7.8, 4.1), (7.8, 4.1), (7.8, 0), (16.7, 0)])  # lines 0-11
sketch17.addGeometry(Part.ArcOfCircle(Part.Circle(Vector(0, -14.5, 0), Vector(0, 0, 1), 11.2), math.radians(-141), math.radians(-39)), False)  # 12
sketch17.addGeometry(Part.LineSegment(Vector(8.8, -21.6, 0), Vector(8.8, -7.4, 0)), False)  # 13
sketch17.addGeometry(Part.ArcOfCircle(Part.Circle(Vector(0, -14.5, 0), Vector(0, 0, 1), 11.2), math.radians(39), math.radians(141)), False)  # 14
sketch17.addGeometry(Part.LineSegment(Vector(-8.8, -7.4, 0), Vector(-8.8, -21.6, 0)), False)  # 15
sketch17.addConstraint(Sketcher.Constraint("Coincident", 12, 2, 13, 1))
sketch17.addConstraint(Sketcher.Constraint("Coincident", 13, 2, 14, 1))
sketch17.addConstraint(Sketcher.Constraint("Coincident", 14, 2, 15, 1))
sketch17.addConstraint(Sketcher.Constraint("Coincident", 15, 2, 12, 1))
sketch17.addConstraint(Sketcher.Constraint("Horizontal", 0))
sketch17.addConstraint(Sketcher.Constraint("Vertical", 1))
sketch17.addConstraint(Sketcher.Constraint("Horizontal", 2))
sketch17.addConstraint(Sketcher.Constraint("Vertical", 3))
sketch17.addConstraint(Sketcher.Constraint("Horizontal", 4))
sketch17.addConstraint(Sketcher.Constraint("Vertical", 5))
sketch17.addConstraint(Sketcher.Constraint("Horizontal", 6))
sketch17.addConstraint(Sketcher.Constraint("Vertical", 7))
sketch17.addConstraint(Sketcher.Constraint("Horizontal", 8))
sketch17.addConstraint(Sketcher.Constraint("Vertical", 9))
sketch17.addConstraint(Sketcher.Constraint("Horizontal", 10))
sketch17.addConstraint(Sketcher.Constraint("Vertical", 11))
sketch17.addConstraint(Sketcher.Constraint("Vertical", 13))
sketch17.addConstraint(Sketcher.Constraint("Vertical", 15))
sketch17.addConstraint(Sketcher.Constraint("Coincident", 14, 3, 12, 3))
sketch17.addConstraint(Sketcher.Constraint("Equal", 12, 14))
sketch17.addConstraint(Sketcher.Constraint("Symmetric", 6, 2, 9, 2, -1, 1))
sketch17.addConstraint(Sketcher.Constraint("Symmetric", 0, 2, 3, 2, -2))
sketch17.addConstraint(Sketcher.Constraint("Symmetric", 13, 2, 14, 2, -2))
sketch17.addConstraint(Sketcher.Constraint("PointOnObject", 5, 2, -1))
sketch17.addConstraint(Sketcher.Constraint("Vertical", 3, 2, 6, 2))
sketch17.addConstraint(Sketcher.Constraint("Equal", 3, 7))
sketch17.addConstraint(Sketcher.Constraint("DistanceY", 5, 1, 5, 2, 29.0))
sketch17.addConstraint(Sketcher.Constraint("Radius", 12, 11.25))
sketch17.addConstraint(Sketcher.Constraint("DistanceX", 2, 2, 2, 1, 15.5))
sketch17.addConstraint(Sketcher.Constraint("DistanceY", 1, 2, 1, 1, 4.06))
sketch17.addConstraint(Sketcher.Constraint("DistanceY", 12, 3, -1, 1, 14.5))
sketch17.addConstraint(Sketcher.Constraint("DistanceY", 13, 1, 13, 2, 14.109902))
sketch17.addConstraint(Sketcher.Constraint("DistanceX", 0, 2, 0, 1, 8.975809))
sketch17.addConstraint(Sketcher.Constraint("DistanceX", 4, 2, 4, 1, 7.828823))
sketch17.setExpression("Constraints[38]", "Params.sketch17_height")
sketch17.setExpression("Constraints[39]", "Params.sketch17_radius")
sketch17.setExpression("Constraints[40]", "Params.sketch17_width")
sketch17.setExpression("Constraints[41]", "Params.sketch17_height2")
pocket15 = body.newObject("PartDesign::Pocket", "Pocket014")
pocket15.Profile = sketch17
pocket15.setExpression("Length", "Params.pocket15_length")
pocket15.Reversed = True

# Sketch on YZ plane
sketch18 = body.newObject("Sketcher::SketchObject", "Sketch017")
sketch18.AttachmentSupport = (doc.getObject("YZ_Plane"), [""])
sketch18.MapMode = "FlatFace"
sketch18.addGeometry(Part.ArcOfCircle(Part.Circle(Vector(0, -14.5, 0), Vector(0, 0, 1), 11.2), math.radians(39), math.radians(141)), False)
sketch18.addGeometry(Part.LineSegment(Vector(8.8, -7.4, 0), Vector(8.8, -21.6, 0)), False)
sketch18.addGeometry(Part.ArcOfCircle(Part.Circle(Vector(0, -14.5, 0), Vector(0, 0, 1), 11.2), math.radians(-141), math.radians(-39)), False)
sketch18.addGeometry(Part.LineSegment(Vector(-8.8, -21.6, 0), Vector(-8.8, -7.4, 0)), False)
sketch18.addGeometry(Part.Circle(Vector(-5.6, -8.9, 0), Vector(0, 0, 1), 1.8), False)
sketch18.addGeometry(Part.Circle(Vector(-5.6, -20.1, 0), Vector(0, 0, 1), 1.8), False)
sketch18.addGeometry(Part.Circle(Vector(5.6, -8.9, 0), Vector(0, 0, 1), 1.8), False)
sketch18.addGeometry(Part.Circle(Vector(0, -14.5, 0), Vector(0, 0, 1), 5.2), False)
sketch18.addGeometry(Part.Circle(Vector(5.6, -20.1, 0), Vector(0, 0, 1), 1.8), False)
sketch18.addConstraint(Sketcher.Constraint("Coincident", 0, 1, 1, 1))
sketch18.addConstraint(Sketcher.Constraint("Coincident", 1, 2, 2, 2))
sketch18.addConstraint(Sketcher.Constraint("Coincident", 2, 1, 3, 1))
sketch18.addConstraint(Sketcher.Constraint("Coincident", 3, 2, 0, 2))
sketch18.addConstraint(Sketcher.Constraint("Vertical", 1))
sketch18.addConstraint(Sketcher.Constraint("Vertical", 3))
sketch18.addConstraint(Sketcher.Constraint("Coincident", 2, 3, 0, 3))
sketch18.addConstraint(Sketcher.Constraint("Coincident", 7, 3, 0, 3))
sketch18.addConstraint(Sketcher.Constraint("Equal", 0, 2))
sketch18.addConstraint(Sketcher.Constraint("Equal", 4, 5))
sketch18.addConstraint(Sketcher.Constraint("Equal", 5, 6))
sketch18.addConstraint(Sketcher.Constraint("Equal", 6, 8))
sketch18.addConstraint(Sketcher.Constraint("Symmetric", 4, 3, 6, 3, -2))
sketch18.addConstraint(Sketcher.Constraint("Symmetric", 5, 3, 8, 3, -2))
sketch18.addConstraint(Sketcher.Constraint("Symmetric", 1, 2, 2, 1, -2))
sketch18.addConstraint(Sketcher.Constraint("Vertical", 4, 3, 5, 3))
sketch18.addConstraint(Sketcher.Constraint("Diameter", 4, 3.5))
sketch18.addConstraint(Sketcher.Constraint("Diameter", 7, 10.5))
sketch18.addConstraint(Sketcher.Constraint("Radius", 0, 11.25))
sketch18.addConstraint(Sketcher.Constraint("DistanceY", 0, 3, -1, 1, 14.5))
sketch18.addConstraint(Sketcher.Constraint("DistanceY", 1, 2, 1, 1, 14.109902))
sketch18.addConstraint(Sketcher.Constraint("DistanceX", 4, 3, -1, 1, 5.567759))
sketch18.addConstraint(Sketcher.Constraint("DistanceY", 4, 3, -1, 1, 8.932241))
sketch18.addConstraint(Sketcher.Constraint("DistanceY", 5, 3, -1, 1, 20.067759))
sketch18.setExpression("Constraints[16]", "Params.sketch18_diameter")
sketch18.setExpression("Constraints[17]", "Params.sketch18_diameter2")
sketch18.setExpression("Constraints[18]", "Params.sketch18_radius")
pocket16 = body.newObject("PartDesign::Pocket", "Pocket015")
pocket16.Profile = sketch18
pocket16.setExpression("Length", "Params.pocket16_length")
pocket16.Reversed = True

# Sketch on YZ plane
sketch19 = body.newObject("Sketcher::SketchObject", "Sketch018")
sketch19.AttachmentSupport = (doc.getObject("YZ_Plane"), [""])
sketch19.MapMode = "FlatFace"
sketch19.AttachmentOffset = App.Placement(Vector(0, 0, 7.75), App.Rotation())
sketch19.addGeometry(Part.ArcOfCircle(Part.Circle(Vector(0, -14.5, 0), Vector(0, 0, 1), 11.2), math.radians(39), math.radians(141)), False)
sketch19.addGeometry(Part.LineSegment(Vector(8.8, -7.4, 0), Vector(8.8, -21.6, 0)), False)
sketch19.addGeometry(Part.ArcOfCircle(Part.Circle(Vector(0, -14.5, 0), Vector(0, 0, 1), 11.2), math.radians(-141), math.radians(-39)), False)
sketch19.addGeometry(Part.LineSegment(Vector(-8.8, -21.6, 0), Vector(-8.8, -7.4, 0)), False)
sketch19.addGeometry(Part.Circle(Vector(-5.6, -8.9, 0), Vector(0, 0, 1), 1.8), False)
sketch19.addGeometry(Part.Circle(Vector(-5.6, -20.1, 0), Vector(0, 0, 1), 1.8), False)
sketch19.addGeometry(Part.Circle(Vector(5.6, -8.9, 0), Vector(0, 0, 1), 1.8), False)
sketch19.addGeometry(Part.Circle(Vector(0, -14.5, 0), Vector(0, 0, 1), 5.2), False)
sketch19.addGeometry(Part.Circle(Vector(5.6, -20.1, 0), Vector(0, 0, 1), 1.8), False)
sketch19.addConstraint(Sketcher.Constraint("Coincident", 0, 1, 1, 1))
sketch19.addConstraint(Sketcher.Constraint("Coincident", 1, 2, 2, 2))
sketch19.addConstraint(Sketcher.Constraint("Coincident", 2, 1, 3, 1))
sketch19.addConstraint(Sketcher.Constraint("Coincident", 3, 2, 0, 2))
sketch19.addConstraint(Sketcher.Constraint("Vertical", 1))
sketch19.addConstraint(Sketcher.Constraint("Vertical", 3))
sketch19.addConstraint(Sketcher.Constraint("Coincident", 2, 3, 0, 3))
sketch19.addConstraint(Sketcher.Constraint("Coincident", 7, 3, 0, 3))
sketch19.addConstraint(Sketcher.Constraint("Equal", 0, 2))
sketch19.addConstraint(Sketcher.Constraint("Equal", 4, 5))
sketch19.addConstraint(Sketcher.Constraint("Equal", 5, 6))
sketch19.addConstraint(Sketcher.Constraint("Equal", 6, 8))
sketch19.addConstraint(Sketcher.Constraint("Symmetric", 4, 3, 6, 3, -2))
sketch19.addConstraint(Sketcher.Constraint("Symmetric", 5, 3, 8, 3, -2))
sketch19.addConstraint(Sketcher.Constraint("Symmetric", 1, 2, 2, 1, -2))
sketch19.addConstraint(Sketcher.Constraint("Vertical", 4, 3, 5, 3))
sketch19.addConstraint(Sketcher.Constraint("Diameter", 4, 3.5))
sketch19.addConstraint(Sketcher.Constraint("Diameter", 7, 10.5))
sketch19.addConstraint(Sketcher.Constraint("Radius", 0, 11.25))
sketch19.addConstraint(Sketcher.Constraint("DistanceY", 0, 3, -1, 1, 14.5))
sketch19.addConstraint(Sketcher.Constraint("DistanceY", 1, 2, 1, 1, 14.109902))
sketch19.addConstraint(Sketcher.Constraint("DistanceX", 4, 3, -1, 1, 5.567759))
sketch19.addConstraint(Sketcher.Constraint("DistanceY", 4, 3, -1, 1, 8.932241))
sketch19.addConstraint(Sketcher.Constraint("DistanceY", 5, 3, -1, 1, 20.067759))
sketch19.setExpression("Constraints[16]", "Params.sketch19_diameter")
sketch19.setExpression("Constraints[17]", "Params.sketch19_diameter2")
sketch19.setExpression("Constraints[18]", "Params.sketch19_radius")
pocket17 = body.newObject("PartDesign::Pocket", "Pocket016")
pocket17.Profile = sketch19
pocket17.setExpression("Length", "Params.pocket17_length")
pocket17.Reversed = True
doc.recompute()

chamfer = body.newObject("PartDesign::Chamfer", "Chamfer")
chamfer.Base = (pocket17, edges_at(pocket17, [
    (27, 0, -33.06),
    (27, 0, 4.06),
    (14, 7.75, 4.06),
    (14, -7.75, 4.06),
    (14, -7.75, -33.06),
    (14, 7.75, -33.06),
    (1, 0, -33.06),
    (1, 0, 4.06),
]))
chamfer.setExpression("Size", "Params.chamfer_size")

doc.recompute()
